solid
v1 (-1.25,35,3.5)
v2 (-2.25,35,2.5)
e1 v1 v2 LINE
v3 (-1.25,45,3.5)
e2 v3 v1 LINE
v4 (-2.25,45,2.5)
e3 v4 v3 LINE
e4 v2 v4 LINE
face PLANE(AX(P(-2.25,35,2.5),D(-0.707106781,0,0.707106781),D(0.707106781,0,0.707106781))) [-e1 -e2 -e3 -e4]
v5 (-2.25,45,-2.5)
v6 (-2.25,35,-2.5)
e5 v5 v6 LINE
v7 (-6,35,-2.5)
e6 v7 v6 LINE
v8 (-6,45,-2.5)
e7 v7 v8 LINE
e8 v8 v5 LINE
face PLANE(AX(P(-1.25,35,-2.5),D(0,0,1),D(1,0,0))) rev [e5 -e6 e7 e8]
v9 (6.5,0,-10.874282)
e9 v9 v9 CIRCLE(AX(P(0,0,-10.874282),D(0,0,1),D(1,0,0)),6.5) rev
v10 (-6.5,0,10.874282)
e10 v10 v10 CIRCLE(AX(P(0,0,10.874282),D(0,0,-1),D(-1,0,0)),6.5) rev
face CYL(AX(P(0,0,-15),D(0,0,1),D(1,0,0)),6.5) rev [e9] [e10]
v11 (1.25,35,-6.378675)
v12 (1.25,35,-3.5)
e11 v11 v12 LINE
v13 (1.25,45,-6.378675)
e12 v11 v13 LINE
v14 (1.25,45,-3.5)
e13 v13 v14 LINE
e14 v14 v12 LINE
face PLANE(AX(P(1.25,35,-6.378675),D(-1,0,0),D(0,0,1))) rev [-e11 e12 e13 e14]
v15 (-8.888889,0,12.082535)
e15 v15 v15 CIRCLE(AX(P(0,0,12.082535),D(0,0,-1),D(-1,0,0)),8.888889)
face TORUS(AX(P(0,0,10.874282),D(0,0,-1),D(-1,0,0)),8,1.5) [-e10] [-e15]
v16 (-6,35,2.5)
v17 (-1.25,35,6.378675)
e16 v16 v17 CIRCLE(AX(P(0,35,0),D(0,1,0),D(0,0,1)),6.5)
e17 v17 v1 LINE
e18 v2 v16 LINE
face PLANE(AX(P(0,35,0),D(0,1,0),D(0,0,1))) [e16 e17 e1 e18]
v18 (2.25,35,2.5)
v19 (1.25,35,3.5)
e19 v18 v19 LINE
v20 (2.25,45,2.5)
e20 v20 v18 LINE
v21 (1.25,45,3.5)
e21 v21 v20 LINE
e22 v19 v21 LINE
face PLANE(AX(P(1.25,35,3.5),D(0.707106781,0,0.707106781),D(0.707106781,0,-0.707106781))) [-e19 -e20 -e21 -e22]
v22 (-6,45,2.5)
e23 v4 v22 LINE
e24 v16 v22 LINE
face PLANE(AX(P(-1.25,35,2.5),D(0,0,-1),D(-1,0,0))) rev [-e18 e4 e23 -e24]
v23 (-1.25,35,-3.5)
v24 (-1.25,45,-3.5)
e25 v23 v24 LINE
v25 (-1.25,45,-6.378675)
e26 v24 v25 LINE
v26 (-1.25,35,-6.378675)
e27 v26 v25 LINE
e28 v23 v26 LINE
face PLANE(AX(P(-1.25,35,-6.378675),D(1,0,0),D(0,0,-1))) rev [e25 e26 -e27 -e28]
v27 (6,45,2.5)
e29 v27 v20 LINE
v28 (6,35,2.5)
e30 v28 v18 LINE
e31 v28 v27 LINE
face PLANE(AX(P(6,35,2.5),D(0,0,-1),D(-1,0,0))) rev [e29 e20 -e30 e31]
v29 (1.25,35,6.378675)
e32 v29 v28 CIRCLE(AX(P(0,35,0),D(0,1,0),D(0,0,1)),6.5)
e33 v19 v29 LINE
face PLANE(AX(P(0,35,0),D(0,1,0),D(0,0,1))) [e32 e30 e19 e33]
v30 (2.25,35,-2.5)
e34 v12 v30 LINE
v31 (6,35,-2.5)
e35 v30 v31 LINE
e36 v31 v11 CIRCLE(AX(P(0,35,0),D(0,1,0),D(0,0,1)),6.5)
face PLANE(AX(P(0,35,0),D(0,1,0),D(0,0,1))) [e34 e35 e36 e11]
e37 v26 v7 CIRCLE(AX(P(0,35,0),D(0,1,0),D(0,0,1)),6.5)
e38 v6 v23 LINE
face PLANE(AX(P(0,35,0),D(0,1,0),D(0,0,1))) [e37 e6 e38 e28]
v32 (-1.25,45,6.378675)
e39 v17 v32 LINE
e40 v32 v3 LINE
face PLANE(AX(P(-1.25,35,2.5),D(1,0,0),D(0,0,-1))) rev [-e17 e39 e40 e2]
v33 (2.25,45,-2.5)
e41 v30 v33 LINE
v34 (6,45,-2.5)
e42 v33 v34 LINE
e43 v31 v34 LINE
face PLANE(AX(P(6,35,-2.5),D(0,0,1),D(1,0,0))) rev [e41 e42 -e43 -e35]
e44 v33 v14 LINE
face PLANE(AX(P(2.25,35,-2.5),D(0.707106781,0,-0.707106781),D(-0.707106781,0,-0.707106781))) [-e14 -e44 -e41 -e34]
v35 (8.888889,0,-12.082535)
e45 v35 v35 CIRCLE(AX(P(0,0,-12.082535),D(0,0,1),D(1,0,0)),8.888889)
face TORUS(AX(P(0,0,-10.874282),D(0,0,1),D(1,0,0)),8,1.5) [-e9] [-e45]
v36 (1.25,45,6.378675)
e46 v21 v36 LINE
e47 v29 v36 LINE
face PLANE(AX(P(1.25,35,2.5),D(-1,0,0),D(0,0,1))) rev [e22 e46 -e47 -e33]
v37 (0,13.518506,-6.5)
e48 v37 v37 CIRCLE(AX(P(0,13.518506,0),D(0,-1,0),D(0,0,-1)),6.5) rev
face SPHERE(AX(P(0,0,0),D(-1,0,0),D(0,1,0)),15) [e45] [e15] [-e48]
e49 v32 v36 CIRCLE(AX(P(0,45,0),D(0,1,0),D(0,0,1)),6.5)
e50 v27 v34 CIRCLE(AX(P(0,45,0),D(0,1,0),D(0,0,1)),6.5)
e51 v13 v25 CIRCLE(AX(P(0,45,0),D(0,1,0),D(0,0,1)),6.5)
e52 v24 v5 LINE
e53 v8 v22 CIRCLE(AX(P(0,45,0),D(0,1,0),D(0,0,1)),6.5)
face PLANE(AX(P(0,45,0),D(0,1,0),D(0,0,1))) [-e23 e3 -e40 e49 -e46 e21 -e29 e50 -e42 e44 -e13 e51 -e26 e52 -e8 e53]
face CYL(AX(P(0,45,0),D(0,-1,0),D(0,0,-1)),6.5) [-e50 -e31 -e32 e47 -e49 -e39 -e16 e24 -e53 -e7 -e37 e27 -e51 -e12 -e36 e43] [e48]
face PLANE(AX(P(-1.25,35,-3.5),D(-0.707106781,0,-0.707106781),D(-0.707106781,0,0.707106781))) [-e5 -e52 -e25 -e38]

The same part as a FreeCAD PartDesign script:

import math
import FreeCAD as App
import Part
import Sketcher
from FreeCAD import Vector


def edges_at(feature, points):
    """Names of the edges that pass closest to the given points."""
    edges = feature.Shape.Edges
    near = lambda p: min(range(len(edges)), key=lambda i: edges[i].distToShape(Part.Vertex(*p))[0])
    return sorted({f"Edge{near(p) + 1}" for p in points})

doc = App.newDocument("Part")
body = doc.addObject("PartDesign::Body", "Body")

# Sketch on XY plane
sketch1 = body.newObject("Sketcher::SketchObject", "Sketch")
sketch1.AttachmentSupport = (doc.getObject("XY_Plane"), [""])
sketch1.MapMode = "FlatFace"
sketch1.addGeometry([
    Part.LineSegment(Vector(-15, 0, 0), Vector(15, 0, 0)),
    Part.ArcOfCircle(Part.Circle(Vector(0, 0, 0), Vector(0, 0, 1), 15), math.radians(0), math.radians(180)),
], False)
sketch1.addConstraint([
    Sketcher.Constraint("Coincident", 0, 1, 1, 2),
    Sketcher.Constraint("Coincident", 1, 1, 0, 2),
    Sketcher.Constraint("Horizontal", 0),
    Sketcher.Constraint("Coincident", 1, 3, -1, 1),
    Sketcher.Constraint("PointOnObject", 0, 1, -1),
    Sketcher.Constraint("Radius", 1, 15.0),
])
revolution = body.newObject("PartDesign::Revolution", "Revolution")
revolution.Profile = sketch1
revolution.ReferenceAxis = (sketch1, ["H_Axis"])
revolution.Angle = 360

# Sketch on XZ plane
sketch2 = body.newObject("Sketcher::SketchObject", "Sketch001")
sketch2.AttachmentSupport = (doc.getObject("XZ_Plane"), [""])
sketch2.MapMode = "FlatFace"
sketch2.addGeometry(Part.Circle(Vector(0, 0, 0), Vector(0, 0, 1), 6), False)
sketch2.addConstraint([
    Sketcher.Constraint("Coincident", 0, 3, -1, 1),
    Sketcher.Constraint("Diameter", 0, 13.0),
])
pad1 = body.newObject("PartDesign::Pad", "Pad")
pad1.Profile = sketch2
pad1.Length = 45
pad1.Reversed = True

# Sketch on XZ plane
sketch3 = body.newObject("Sketcher::SketchObject", "Sketch002")
sketch3.AttachmentSupport = (doc.getObject("XZ_Plane"), [""])
sketch3.MapMode = "FlatFace"
sketch3.AttachmentOffset = App.Placement(Vector(0, 0, -35), App.Rotation())
sketch3.addGeometry([
    Part.LineSegment(Vector(1.2, -6.4, 0), Vector(1.2, -2.5, 0)),  # 0
    Part.LineSegment(Vector(1.2, -2.5, 0), Vector(6, -2.5, 0)),  # 1
    Part.ArcOfCircle(Part.Circle(Vector(0, 0, 0), Vector(0, 0, 1), 6.5), math.radians(-79), math.radians(-23)),  # 2
    Part.LineSegment(Vector(-1.2, -2.5, 0), Vector(-1.2, -6.4, 0)),  # 3
    Part.ArcOfCircle(Part.Circle(Vector(0, 0, 0), Vector(0, 0, 1), 6.5), math.radians(-157), math.radians(-101)),  # 4
    Part.LineSegment(Vector(-6, -2.5, 0), Vector(-1.2, -2.5, 0)),  # 5
    Part.LineSegment(Vector(6, 2.5, 0), Vector(1.2, 2.5, 0)),  # 6
    Part.LineSegment(Vector(1.2, 2.5, 0), Vector(1.2, 6.4, 0)),  # 7
    Part.ArcOfCircle(Part.Circle(Vector(0, 0, 0), Vector(0, 0, 1), 6.5), math.radians(23), math.radians(79)),  # 8
    Part.LineSegment(Vector(-1.2, 6.4, 0), Vector(-1.2, 2.5, 0)),  # 9
    Part.LineSegment(Vector(-1.2, 2.5, 0), Vector(-6, 2.5, 0)),  # 10
    Part.ArcOfCircle(Part.Circle(Vector(0, 0, 0), Vector(0, 0, 1), 6.5), math.radians(101), math.radians(157)),  # 11
], False)
sketch3.addConstraint([
    Sketcher.Constraint("Coincident", 0, 2, 1, 1),
    Sketcher.Constraint("Coincident", 1, 2, 2, 2),
    Sketcher.Constraint("Coincident", 2, 1, 0, 1),
    Sketcher.Constraint("Coincident", 3, 2, 4, 2),
    Sketcher.Constraint("Coincident", 4, 1, 5, 1),
    Sketcher.Constraint("Coincident", 5, 2, 3, 1),
    Sketcher.Constraint("Coincident", 6, 2, 7, 1),
    Sketcher.Constraint("Coincident", 7, 2, 8, 2),
    Sketcher.Constraint("Coincident", 8, 1, 6, 1),
    Sketcher.Constraint("Coincident", 9, 2, 10, 1),
    Sketcher.Constraint("Coincident", 10, 2, 11, 2),
    Sketcher.Constraint("Coincident", 11, 1, 9, 1),
    Sketcher.Constraint("Vertical", 0),
    Sketcher.Constraint("Horizontal", 1),
    Sketcher.Constraint("Vertical", 3),
    Sketcher.Constraint("Horizontal", 5),
    Sketcher.Constraint("Horizontal", 6),
    Sketcher.Constraint("Vertical", 7),
    Sketcher.Constraint("Vertical", 9),
    Sketcher.Constraint("Horizontal", 10),
    Sketcher.Constraint("Coincident", 2, 3, -1, 1),
    Sketcher.Constraint("Coincident", 4, 3, -1, 1),
    Sketcher.Constraint("Coincident", 8, 3, -1, 1),
    Sketcher.Constraint("Coincident", 11, 3, -1, 1),
    Sketcher.Constraint("Equal", 2, 4),
    Sketcher.Constraint("Equal", 4, 8),
    Sketcher.Constraint("Equal", 8, 11),
    Sketcher.Constraint("Symmetric", 5, 2, 6, 2, -1, 1),
    Sketcher.Constraint("Symmetric", 0, 2, 9, 2, -1, 1),
    Sketcher.Constraint("Symmetric", 0, 2, 5, 2, -2),
    Sketcher.Constraint("Radius", 2, 6.5),
    Sketcher.Constraint("DistanceX", -1, 1, 1, 2, 6.0),
    Sketcher.Constraint("DistanceX", 1, 1, 1, 2, 4.75),
])
pocket1 = body.newObject("PartDesign::Pocket", "Pocket")
pocket1.Profile = sketch3
pocket1.Length = 10
doc.recompute()

chamfer = body.newObject("PartDesign::Chamfer", "Chamfer")
chamfer.Base = (pocket1, edges_at(pocket1, [
    (-1.25, 40, -2.5),
    (1.25, 40, 2.5),
    (1.25, 40, -2.5),
    (-1.25, 40, 2.5),
]))
chamfer.Size = 1

# Sketch on XY plane
sketch4 = body.newObject("Sketcher::SketchObject", "Sketch003")
sketch4.AttachmentSupport = (doc.getObject("XY_Plane"), [""])
sketch4.MapMode = "FlatFace"
sketch4.addGeometry(Part.Circle(Vector(0, 0, 0), Vector(0, 0, 1), 6), False)
sketch4.addConstraint([
    Sketcher.Constraint("Coincident", 0, 3, -1, 1),
    Sketcher.Constraint("Diameter", 0, 13.0),
])
pocket2 = body.newObject("PartDesign::Pocket", "Pocket001")
pocket2.Profile = sketch4
pocket2.Type = "ThroughAll"
pocket2.Midplane = True
doc.recompute()

fillet = body.newObject("PartDesign::Fillet", "Fillet")
fillet.Base = (pocket2, edges_at(pocket2, [(-6.5, 0, -13.519), (-6.5, 0, 13.519)]))
fillet.Radius = 1.5

doc.recompute()
